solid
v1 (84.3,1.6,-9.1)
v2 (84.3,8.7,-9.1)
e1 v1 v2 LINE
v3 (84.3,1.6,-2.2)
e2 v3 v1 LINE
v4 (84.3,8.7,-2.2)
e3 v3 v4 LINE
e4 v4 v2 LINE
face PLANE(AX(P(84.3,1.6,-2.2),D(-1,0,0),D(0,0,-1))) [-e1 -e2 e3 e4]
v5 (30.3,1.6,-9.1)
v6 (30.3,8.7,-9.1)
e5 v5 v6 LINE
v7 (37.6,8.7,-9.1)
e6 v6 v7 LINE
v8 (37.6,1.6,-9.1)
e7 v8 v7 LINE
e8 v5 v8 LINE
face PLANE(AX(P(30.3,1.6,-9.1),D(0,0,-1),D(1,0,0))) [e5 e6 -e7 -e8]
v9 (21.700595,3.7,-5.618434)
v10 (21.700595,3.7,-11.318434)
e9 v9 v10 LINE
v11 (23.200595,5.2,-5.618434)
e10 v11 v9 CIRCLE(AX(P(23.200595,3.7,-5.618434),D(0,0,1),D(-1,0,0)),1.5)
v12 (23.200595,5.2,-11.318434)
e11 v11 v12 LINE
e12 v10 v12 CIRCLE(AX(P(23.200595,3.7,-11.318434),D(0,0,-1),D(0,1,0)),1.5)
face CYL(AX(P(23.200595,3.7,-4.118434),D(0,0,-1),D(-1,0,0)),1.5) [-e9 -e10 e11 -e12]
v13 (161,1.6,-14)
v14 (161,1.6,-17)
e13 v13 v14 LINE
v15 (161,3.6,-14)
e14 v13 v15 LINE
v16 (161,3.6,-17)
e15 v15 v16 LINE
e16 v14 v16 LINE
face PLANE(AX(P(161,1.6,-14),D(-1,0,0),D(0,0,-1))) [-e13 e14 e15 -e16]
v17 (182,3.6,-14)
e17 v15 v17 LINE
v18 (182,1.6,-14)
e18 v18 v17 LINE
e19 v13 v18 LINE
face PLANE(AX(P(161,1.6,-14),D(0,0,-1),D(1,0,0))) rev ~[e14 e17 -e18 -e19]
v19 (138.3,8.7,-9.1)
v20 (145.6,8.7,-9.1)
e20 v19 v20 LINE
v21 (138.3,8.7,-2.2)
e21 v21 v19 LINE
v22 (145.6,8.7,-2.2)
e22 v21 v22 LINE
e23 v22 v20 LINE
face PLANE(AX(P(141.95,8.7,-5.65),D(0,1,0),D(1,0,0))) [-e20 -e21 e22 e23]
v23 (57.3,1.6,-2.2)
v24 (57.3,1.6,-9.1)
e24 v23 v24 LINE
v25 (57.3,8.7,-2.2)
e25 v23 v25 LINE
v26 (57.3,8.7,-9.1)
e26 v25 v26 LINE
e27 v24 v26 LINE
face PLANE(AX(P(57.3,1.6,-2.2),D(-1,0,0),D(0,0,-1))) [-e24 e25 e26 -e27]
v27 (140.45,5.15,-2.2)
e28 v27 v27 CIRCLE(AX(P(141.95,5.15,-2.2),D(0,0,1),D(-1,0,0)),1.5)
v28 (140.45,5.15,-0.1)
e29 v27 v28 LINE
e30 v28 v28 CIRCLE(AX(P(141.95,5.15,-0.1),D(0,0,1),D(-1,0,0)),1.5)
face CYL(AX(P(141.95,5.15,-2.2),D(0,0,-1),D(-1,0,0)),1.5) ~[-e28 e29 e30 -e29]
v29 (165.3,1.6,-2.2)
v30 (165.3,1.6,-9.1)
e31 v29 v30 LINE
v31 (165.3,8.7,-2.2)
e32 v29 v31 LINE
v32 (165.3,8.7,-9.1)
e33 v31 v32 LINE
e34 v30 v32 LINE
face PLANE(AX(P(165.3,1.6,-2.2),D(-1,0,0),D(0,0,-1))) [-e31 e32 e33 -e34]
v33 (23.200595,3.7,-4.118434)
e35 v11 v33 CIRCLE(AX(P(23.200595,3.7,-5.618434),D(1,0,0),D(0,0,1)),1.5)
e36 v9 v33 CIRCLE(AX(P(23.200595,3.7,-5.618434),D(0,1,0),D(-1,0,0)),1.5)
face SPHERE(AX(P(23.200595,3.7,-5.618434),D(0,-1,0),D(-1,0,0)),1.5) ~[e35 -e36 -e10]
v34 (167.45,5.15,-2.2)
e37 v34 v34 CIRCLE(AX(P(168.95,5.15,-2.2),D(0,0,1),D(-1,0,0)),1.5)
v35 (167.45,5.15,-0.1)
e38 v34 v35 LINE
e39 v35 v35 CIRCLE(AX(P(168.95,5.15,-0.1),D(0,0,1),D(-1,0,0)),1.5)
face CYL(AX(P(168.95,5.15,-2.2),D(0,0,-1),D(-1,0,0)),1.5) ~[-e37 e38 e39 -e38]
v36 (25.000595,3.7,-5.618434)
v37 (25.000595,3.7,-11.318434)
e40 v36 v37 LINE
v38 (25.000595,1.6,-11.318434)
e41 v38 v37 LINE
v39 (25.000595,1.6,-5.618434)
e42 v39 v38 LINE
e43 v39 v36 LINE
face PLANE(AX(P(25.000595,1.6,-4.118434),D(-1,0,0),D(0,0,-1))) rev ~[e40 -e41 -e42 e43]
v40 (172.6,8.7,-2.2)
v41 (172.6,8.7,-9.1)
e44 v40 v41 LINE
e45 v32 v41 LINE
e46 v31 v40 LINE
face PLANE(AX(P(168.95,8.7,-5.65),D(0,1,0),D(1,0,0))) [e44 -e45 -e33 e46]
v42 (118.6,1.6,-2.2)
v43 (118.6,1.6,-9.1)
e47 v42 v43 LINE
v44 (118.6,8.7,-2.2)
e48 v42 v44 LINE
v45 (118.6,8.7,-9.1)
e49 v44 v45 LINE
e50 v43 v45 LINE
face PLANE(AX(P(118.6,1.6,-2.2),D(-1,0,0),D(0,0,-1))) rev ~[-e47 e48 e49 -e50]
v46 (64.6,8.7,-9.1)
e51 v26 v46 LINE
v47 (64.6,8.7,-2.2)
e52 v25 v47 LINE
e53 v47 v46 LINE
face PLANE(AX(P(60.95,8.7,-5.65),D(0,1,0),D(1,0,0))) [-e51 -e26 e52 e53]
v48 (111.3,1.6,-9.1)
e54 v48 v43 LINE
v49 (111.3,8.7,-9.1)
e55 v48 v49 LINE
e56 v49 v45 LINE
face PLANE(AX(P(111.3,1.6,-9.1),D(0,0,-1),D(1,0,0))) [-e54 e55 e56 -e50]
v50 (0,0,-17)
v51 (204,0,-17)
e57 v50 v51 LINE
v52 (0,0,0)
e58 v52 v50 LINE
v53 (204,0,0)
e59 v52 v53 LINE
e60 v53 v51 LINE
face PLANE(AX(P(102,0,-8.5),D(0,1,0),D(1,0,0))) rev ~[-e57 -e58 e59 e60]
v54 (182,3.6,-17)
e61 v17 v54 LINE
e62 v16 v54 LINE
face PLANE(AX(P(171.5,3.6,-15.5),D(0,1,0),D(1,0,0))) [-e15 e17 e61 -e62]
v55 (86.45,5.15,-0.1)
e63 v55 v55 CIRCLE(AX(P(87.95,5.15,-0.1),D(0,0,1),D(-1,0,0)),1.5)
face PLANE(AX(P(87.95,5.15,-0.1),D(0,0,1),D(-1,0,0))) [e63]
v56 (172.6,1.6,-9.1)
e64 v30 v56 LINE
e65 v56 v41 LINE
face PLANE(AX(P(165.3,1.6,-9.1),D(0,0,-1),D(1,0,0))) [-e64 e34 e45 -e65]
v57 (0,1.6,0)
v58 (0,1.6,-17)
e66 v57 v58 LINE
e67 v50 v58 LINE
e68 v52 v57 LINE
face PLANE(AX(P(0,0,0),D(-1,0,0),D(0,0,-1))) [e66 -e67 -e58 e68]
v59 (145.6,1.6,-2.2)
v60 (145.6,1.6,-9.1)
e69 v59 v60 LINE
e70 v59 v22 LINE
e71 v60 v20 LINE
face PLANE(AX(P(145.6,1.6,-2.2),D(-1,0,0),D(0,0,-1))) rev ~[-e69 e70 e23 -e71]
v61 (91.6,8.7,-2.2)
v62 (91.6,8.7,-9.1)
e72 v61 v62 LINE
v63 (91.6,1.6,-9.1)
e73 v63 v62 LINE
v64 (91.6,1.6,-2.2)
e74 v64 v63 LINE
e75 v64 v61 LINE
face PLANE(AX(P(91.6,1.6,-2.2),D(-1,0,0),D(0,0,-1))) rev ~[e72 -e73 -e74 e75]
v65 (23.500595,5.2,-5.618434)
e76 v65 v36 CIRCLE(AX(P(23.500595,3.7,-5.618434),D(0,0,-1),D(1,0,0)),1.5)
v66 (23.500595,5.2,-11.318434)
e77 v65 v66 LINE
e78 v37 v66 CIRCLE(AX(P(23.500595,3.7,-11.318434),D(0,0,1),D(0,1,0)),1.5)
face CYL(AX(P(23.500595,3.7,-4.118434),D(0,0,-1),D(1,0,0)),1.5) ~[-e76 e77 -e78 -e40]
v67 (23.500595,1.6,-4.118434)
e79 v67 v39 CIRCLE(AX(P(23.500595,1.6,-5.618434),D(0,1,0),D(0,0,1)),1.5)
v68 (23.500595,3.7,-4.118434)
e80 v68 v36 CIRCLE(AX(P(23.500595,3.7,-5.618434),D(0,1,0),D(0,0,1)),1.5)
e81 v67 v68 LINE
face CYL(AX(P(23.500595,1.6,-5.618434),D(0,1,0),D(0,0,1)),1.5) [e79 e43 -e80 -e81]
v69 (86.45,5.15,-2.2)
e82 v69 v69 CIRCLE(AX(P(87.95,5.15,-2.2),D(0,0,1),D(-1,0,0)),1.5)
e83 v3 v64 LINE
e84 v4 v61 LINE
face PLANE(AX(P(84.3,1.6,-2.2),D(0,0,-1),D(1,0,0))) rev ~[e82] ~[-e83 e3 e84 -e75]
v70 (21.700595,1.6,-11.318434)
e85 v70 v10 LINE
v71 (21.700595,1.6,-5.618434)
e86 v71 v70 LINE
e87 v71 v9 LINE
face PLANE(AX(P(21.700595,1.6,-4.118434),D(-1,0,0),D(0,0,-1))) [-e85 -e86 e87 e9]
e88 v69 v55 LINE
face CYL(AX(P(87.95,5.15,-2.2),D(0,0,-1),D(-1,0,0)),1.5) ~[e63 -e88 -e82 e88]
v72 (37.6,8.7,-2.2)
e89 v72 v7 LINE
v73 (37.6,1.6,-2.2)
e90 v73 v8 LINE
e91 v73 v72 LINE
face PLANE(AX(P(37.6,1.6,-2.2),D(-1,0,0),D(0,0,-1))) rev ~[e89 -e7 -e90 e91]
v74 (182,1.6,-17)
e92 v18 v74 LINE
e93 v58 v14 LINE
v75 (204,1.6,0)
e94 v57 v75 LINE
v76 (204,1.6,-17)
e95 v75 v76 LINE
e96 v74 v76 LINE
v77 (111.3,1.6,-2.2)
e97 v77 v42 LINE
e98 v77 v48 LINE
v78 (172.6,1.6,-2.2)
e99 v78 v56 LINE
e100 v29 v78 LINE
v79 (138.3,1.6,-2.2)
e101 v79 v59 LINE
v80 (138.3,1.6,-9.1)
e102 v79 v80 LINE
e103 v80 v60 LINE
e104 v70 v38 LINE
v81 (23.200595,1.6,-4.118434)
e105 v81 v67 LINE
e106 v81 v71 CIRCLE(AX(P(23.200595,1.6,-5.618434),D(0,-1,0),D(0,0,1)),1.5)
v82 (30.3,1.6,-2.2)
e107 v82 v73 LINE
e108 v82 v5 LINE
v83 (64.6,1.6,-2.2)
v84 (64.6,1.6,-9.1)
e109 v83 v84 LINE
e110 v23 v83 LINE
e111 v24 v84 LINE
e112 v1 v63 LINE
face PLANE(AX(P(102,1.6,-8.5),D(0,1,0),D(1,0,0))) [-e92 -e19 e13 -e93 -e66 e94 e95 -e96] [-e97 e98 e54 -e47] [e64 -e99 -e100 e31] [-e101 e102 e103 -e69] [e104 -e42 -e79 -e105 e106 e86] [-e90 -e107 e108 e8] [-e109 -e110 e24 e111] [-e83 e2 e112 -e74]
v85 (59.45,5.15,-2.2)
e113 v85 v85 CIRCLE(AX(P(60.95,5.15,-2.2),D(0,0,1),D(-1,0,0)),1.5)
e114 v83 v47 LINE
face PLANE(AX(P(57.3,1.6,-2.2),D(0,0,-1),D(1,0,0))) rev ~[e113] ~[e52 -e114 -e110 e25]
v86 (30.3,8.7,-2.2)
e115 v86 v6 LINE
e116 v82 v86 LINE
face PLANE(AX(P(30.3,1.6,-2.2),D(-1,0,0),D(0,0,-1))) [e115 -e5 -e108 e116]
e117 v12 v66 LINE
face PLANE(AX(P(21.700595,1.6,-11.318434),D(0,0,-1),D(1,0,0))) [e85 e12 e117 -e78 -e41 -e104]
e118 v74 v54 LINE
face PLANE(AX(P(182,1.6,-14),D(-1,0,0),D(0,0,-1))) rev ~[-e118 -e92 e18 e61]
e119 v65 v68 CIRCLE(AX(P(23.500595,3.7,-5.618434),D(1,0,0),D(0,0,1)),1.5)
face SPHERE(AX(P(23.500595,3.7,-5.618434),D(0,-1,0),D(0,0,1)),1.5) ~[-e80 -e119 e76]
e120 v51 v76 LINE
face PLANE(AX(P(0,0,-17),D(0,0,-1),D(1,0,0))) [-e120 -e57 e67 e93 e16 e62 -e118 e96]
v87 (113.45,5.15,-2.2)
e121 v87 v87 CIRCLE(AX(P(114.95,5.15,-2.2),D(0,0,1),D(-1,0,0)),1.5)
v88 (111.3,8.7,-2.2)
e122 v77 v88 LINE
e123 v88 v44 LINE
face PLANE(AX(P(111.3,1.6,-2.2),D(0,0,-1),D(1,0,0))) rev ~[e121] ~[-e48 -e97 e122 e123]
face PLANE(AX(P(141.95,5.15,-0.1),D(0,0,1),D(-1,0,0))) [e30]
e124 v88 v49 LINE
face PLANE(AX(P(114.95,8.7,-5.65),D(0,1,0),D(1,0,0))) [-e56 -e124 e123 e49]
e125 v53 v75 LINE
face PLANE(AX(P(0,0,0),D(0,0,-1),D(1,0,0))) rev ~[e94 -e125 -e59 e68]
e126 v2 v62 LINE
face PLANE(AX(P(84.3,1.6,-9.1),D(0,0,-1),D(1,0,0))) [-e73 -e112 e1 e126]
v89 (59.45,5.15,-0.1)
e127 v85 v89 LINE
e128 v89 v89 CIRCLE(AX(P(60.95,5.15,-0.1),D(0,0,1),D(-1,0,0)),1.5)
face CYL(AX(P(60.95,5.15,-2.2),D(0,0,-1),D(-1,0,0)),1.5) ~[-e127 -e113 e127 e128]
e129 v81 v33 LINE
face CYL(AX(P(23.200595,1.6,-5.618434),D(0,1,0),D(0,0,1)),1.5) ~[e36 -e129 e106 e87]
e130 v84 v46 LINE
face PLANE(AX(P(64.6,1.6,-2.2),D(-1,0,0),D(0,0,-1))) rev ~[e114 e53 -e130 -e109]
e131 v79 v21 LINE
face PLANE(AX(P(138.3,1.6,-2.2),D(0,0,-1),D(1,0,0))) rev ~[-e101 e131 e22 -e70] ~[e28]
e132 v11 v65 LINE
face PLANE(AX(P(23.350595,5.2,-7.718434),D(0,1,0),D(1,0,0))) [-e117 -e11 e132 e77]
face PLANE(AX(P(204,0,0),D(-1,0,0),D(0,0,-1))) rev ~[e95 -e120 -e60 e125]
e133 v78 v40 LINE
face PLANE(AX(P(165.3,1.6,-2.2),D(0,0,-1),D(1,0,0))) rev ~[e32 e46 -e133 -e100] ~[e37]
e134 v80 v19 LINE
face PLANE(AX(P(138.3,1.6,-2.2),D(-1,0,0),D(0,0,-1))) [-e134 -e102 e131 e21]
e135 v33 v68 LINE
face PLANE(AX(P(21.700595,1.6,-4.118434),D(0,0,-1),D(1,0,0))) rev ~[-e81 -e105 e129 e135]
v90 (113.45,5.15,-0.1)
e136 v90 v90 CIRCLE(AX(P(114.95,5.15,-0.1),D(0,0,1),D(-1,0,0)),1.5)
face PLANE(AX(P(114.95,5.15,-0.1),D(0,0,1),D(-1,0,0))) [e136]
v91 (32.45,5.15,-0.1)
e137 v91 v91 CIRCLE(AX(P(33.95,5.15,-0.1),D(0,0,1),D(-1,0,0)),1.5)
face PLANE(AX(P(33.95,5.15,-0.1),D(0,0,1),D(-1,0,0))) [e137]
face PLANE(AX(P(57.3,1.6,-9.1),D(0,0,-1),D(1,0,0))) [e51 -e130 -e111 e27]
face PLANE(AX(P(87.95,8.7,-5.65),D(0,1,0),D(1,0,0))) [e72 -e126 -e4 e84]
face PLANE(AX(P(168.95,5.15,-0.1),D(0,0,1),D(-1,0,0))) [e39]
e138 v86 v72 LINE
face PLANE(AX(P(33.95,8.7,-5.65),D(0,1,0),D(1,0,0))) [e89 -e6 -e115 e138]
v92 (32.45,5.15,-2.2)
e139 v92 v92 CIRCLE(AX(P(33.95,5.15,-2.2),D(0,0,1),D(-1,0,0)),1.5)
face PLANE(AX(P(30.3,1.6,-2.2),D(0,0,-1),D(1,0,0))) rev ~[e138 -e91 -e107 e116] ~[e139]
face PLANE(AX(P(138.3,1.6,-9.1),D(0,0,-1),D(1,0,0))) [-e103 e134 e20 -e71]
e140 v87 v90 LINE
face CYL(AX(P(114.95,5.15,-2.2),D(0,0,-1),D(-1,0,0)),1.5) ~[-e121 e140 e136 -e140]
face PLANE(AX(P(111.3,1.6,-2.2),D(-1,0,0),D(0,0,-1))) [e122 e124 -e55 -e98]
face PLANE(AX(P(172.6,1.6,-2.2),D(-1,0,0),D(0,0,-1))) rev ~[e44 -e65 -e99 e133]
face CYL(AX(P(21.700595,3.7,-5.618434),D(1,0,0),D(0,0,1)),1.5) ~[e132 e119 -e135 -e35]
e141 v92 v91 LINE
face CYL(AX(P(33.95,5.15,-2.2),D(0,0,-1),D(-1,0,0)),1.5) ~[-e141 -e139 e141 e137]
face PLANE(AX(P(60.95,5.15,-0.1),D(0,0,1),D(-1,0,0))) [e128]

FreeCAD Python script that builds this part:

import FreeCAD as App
import Part
import Sketcher

V = App.Vector
Q = App.Units.Quantity


def edges_at(feature, points):
    """Names of the edges that pass closest to the given points."""
    edges = feature.Shape.Edges
    near = lambda p: min(range(len(edges)), key=lambda i: edges[i].distToShape(Part.Vertex(*p))[0])
    return sorted({f"Edge{near(p) + 1}" for p in points})

doc = App.newDocument("Part")
params = doc.addObject("Spreadsheet::Sheet", "Params")
for row, (alias, value) in enumerate([
    ("sketch1_width", "204 mm"),
    ("sketch1_height", "17 mm"),
    ("pad1_length", "1.6 mm"),
    ("sketch2_width", "7.3 mm"),
    ("sketch2_height", "6.9 mm"),
    ("pad2_length", "7.1 mm"),
    ("sketch3_diameter", "3 mm"),
    ("pad3_length", "2.1 mm"),
    ("sketch4_width", "3.3 mm"),
    ("sketch4_height", "7.2 mm"),
    ("pad4_length", "3.6 mm"),
    ("sketch5_width", "21 mm"),
    ("sketch5_height", "3 mm"),
    ("pad5_length", "2 mm"),
    ("linearpattern_pitch", "27 mm"),
    ("fillet_radius", "1.5 mm"),
], start=1):
    params.set(f"A{row}", alias)
    params.set(f"B{row}", "=" + value)
    params.setAlias(f"B{row}", alias)

body = doc.addObject("PartDesign::Body", "Body")

sketch1 = body.newObject("Sketcher::SketchObject", "Sketch")
sketch1.AttachmentSupport = (doc.getObject("XZ_Plane"), [""])
sketch1.MapMode = "FlatFace"
sketch1.addGeometry([
    Part.LineSegment(V(0, -17, 0), V(0, 0, 0)),
    Part.LineSegment(V(0, 0, 0), V(204, 0, 0)),
    Part.LineSegment(V(204, 0, 0), V(204, -17, 0)),
    Part.LineSegment(V(204, -17, 0), V(0, -17, 0)),
], False)
sketch1.addConstraint([
    Sketcher.Constraint("Coincident", 0, 2, 1, 1),
    Sketcher.Constraint("Coincident", 1, 2, 2, 1),
    Sketcher.Constraint("Coincident", 2, 2, 3, 1),
    Sketcher.Constraint("Coincident", 3, 2, 0, 1),
    Sketcher.Constraint("Vertical", 0),
    Sketcher.Constraint("Horizontal", 1),
    Sketcher.Constraint("Vertical", 2),
    Sketcher.Constraint("Horizontal", 3),
    Sketcher.Constraint("Coincident", 0, 2, -1, 1),
    Sketcher.Constraint("DistanceX", 1, 1, 1, 2, Q("204 mm")),
    Sketcher.Constraint("DistanceY", 0, 1, 0, 2, Q("17 mm")),
])
sketch1.setExpression("Constraints[9]", "Params.sketch1_width")
sketch1.setExpression("Constraints[10]", "Params.sketch1_height")
pad1 = body.newObject("PartDesign::Pad", "Pad")
pad1.Profile = sketch1
pad1.setExpression("Length", "Params.pad1_length")
pad1.Reversed = True

sketch2 = body.newObject("Sketcher::SketchObject", "Sketch001")
sketch2.AttachmentSupport = (doc.getObject("XZ_Plane"), [""])
sketch2.MapMode = "FlatFace"
sketch2.AttachmentOffset = App.Placement(V(0, 0, -1.6), App.Rotation())
sketch2.addGeometry([
    Part.LineSegment(V(30, -9, 0), V(30, -2, 0)),
    Part.LineSegment(V(30, -2, 0), V(38, -2, 0)),
    Part.LineSegment(V(38, -2, 0), V(38, -9, 0)),
    Part.LineSegment(V(38, -9, 0), V(30, -9, 0)),
], False)
sketch2.addConstraint([
    Sketcher.Constraint("Coincident", 0, 2, 1, 1),
    Sketcher.Constraint("Coincident", 1, 2, 2, 1),
    Sketcher.Constraint("Coincident", 2, 2, 3, 1),
    Sketcher.Constraint("Coincident", 3, 2, 0, 1),
    Sketcher.Constraint("Vertical", 0),
    Sketcher.Constraint("Horizontal", 1),
    Sketcher.Constraint("Vertical", 2),
    Sketcher.Constraint("Horizontal", 3),
    Sketcher.Constraint("DistanceX", 1, 1, 1, 2, Q("7.3 mm")),
    Sketcher.Constraint("DistanceY", 0, 1, 0, 2, Q("6.9 mm")),
    Sketcher.Constraint("DistanceX", -1, 1, 0, 2, Q("30.3 mm")),
    Sketcher.Constraint("DistanceY", 0, 2, -1, 1, Q("2.2 mm")),
])
sketch2.setExpression("Constraints[8]", "Params.sketch2_width")
sketch2.setExpression("Constraints[9]", "Params.sketch2_height")
pad2 = body.newObject("PartDesign::Pad", "Pad001")
pad2.Profile = sketch2
pad2.setExpression("Length", "Params.pad2_length")
pad2.Reversed = True

sketch3 = body.newObject("Sketcher::SketchObject", "Sketch002")
sketch3.AttachmentSupport = (doc.getObject("XY_Plane"), [""])
sketch3.MapMode = "FlatFace"
sketch3.AttachmentOffset = App.Placement(V(0, 0, -2.2), App.Rotation())
sketch3.addGeometry(Part.Circle(V(34, 5.2, 0), V(0, 0, 1), 1.5), False)
sketch3.addConstraint([
    Sketcher.Constraint("Diameter", 0, Q("3 mm")),
    Sketcher.Constraint("DistanceX", -1, 1, 0, 3, Q("33.95 mm")),
    Sketcher.Constraint("DistanceY", -1, 1, 0, 3, Q("5.15 mm")),
])
sketch3.setExpression("Constraints[0]", "Params.sketch3_diameter")
pad3 = body.newObject("PartDesign::Pad", "Pad002")
pad3.Profile = sketch3
pad3.setExpression("Length", "Params.pad3_length")

sketch4 = body.newObject("Sketcher::SketchObject", "Sketch003")
sketch4.AttachmentSupport = (doc.getObject("XZ_Plane"), [""])
sketch4.MapMode = "FlatFace"
sketch4.AttachmentOffset = App.Placement(V(0, 0, -1.6), App.Rotation())
sketch4.addGeometry([
    Part.LineSegment(V(21.7, -11.3, 0), V(21.7, -4.1, 0)),
    Part.LineSegment(V(21.7, -4.1, 0), V(25, -4.1, 0)),
    Part.LineSegment(V(25, -4.1, 0), V(25, -11.3, 0)),
    Part.LineSegment(V(25, -11.3, 0), V(21.7, -11.3, 0)),
], False)
sketch4.addConstraint([
    Sketcher.Constraint("Coincident", 0, 2, 1, 1),
    Sketcher.Constraint("Coincident", 1, 2, 2, 1),
    Sketcher.Constraint("Coincident", 2, 2, 3, 1),
    Sketcher.Constraint("Coincident", 3, 2, 0, 1),
    Sketcher.Constraint("Vertical", 0),
    Sketcher.Constraint("Horizontal", 1),
    Sketcher.Constraint("Vertical", 2),
    Sketcher.Constraint("Horizontal", 3),
    Sketcher.Constraint("DistanceX", 1, 1, 1, 2, Q("3.3 mm")),
    Sketcher.Constraint("DistanceY", 0, 1, 0, 2, Q("7.2 mm")),
    Sketcher.Constraint("DistanceX", -1, 1, 0, 2, Q("21.700595 mm")),
    Sketcher.Constraint("DistanceY", 0, 2, -1, 1, Q("4.118434 mm")),
])
sketch4.setExpression("Constraints[8]", "Params.sketch4_width")
sketch4.setExpression("Constraints[9]", "Params.sketch4_height")
pad4 = body.newObject("PartDesign::Pad", "Pad003")
pad4.Profile = sketch4
pad4.setExpression("Length", "Params.pad4_length")
pad4.Reversed = True

sketch5 = body.newObject("Sketcher::SketchObject", "Sketch004")
sketch5.AttachmentSupport = (doc.getObject("XZ_Plane"), [""])
sketch5.MapMode = "FlatFace"
sketch5.AttachmentOffset = App.Placement(V(0, 0, -1.6), App.Rotation())
sketch5.addGeometry([
    Part.LineSegment(V(161, -17, 0), V(161, -14, 0)),
    Part.LineSegment(V(161, -14, 0), V(182, -14, 0)),
    Part.LineSegment(V(182, -14, 0), V(182, -17, 0)),
    Part.LineSegment(V(182, -17, 0), V(161, -17, 0)),
], False)
sketch5.addConstraint([
    Sketcher.Constraint("Coincident", 0, 2, 1, 1),
    Sketcher.Constraint("Coincident", 1, 2, 2, 1),
    Sketcher.Constraint("Coincident", 2, 2, 3, 1),
    Sketcher.Constraint("Coincident", 3, 2, 0, 1),
    Sketcher.Constraint("Vertical", 0),
    Sketcher.Constraint("Horizontal", 1),
    Sketcher.Constraint("Vertical", 2),
    Sketcher.Constraint("Horizontal", 3),
    Sketcher.Constraint("DistanceX", 1, 1, 1, 2, Q("21 mm")),
    Sketcher.Constraint("DistanceY", 0, 1, 0, 2, Q("3 mm")),
    Sketcher.Constraint("DistanceX", -1, 1, 0, 2, Q("161 mm")),
    Sketcher.Constraint("DistanceY", 0, 2, -1, 1, Q("14 mm")),
])
sketch5.setExpression("Constraints[8]", "Params.sketch5_width")
sketch5.setExpression("Constraints[9]", "Params.sketch5_height")
pad5 = body.newObject("PartDesign::Pad", "Pad004")
pad5.Profile = sketch5
pad5.setExpression("Length", "Params.pad5_length")
pad5.Reversed = True
doc.recompute()

linearpattern = body.newObject("PartDesign::LinearPattern", "LinearPattern")
linearpattern.Originals = [pad2, pad3]
linearpattern.Direction = (doc.getObject("X_Axis"), [""])
linearpattern.Mode = "offset"
linearpattern.setExpression("Offset", "Params.linearpattern_pitch")
linearpattern.Occurrences = 6
body.Tip = linearpattern
doc.recompute()

fillet = body.newObject("PartDesign::Fillet", "Fillet")
fillet.Base = (linearpattern, edges_at(linearpattern, [
    (21.701, 3.4, -4.118),
    (25.001, 3.4, -4.118),
    (21.701, 5.2, -7.718),
    (23.351, 5.2, -4.118),
    (25.001, 5.2, -7.718),
]))
fillet.setExpression("Radius", "Params.fillet_radius")

doc.recompute()
